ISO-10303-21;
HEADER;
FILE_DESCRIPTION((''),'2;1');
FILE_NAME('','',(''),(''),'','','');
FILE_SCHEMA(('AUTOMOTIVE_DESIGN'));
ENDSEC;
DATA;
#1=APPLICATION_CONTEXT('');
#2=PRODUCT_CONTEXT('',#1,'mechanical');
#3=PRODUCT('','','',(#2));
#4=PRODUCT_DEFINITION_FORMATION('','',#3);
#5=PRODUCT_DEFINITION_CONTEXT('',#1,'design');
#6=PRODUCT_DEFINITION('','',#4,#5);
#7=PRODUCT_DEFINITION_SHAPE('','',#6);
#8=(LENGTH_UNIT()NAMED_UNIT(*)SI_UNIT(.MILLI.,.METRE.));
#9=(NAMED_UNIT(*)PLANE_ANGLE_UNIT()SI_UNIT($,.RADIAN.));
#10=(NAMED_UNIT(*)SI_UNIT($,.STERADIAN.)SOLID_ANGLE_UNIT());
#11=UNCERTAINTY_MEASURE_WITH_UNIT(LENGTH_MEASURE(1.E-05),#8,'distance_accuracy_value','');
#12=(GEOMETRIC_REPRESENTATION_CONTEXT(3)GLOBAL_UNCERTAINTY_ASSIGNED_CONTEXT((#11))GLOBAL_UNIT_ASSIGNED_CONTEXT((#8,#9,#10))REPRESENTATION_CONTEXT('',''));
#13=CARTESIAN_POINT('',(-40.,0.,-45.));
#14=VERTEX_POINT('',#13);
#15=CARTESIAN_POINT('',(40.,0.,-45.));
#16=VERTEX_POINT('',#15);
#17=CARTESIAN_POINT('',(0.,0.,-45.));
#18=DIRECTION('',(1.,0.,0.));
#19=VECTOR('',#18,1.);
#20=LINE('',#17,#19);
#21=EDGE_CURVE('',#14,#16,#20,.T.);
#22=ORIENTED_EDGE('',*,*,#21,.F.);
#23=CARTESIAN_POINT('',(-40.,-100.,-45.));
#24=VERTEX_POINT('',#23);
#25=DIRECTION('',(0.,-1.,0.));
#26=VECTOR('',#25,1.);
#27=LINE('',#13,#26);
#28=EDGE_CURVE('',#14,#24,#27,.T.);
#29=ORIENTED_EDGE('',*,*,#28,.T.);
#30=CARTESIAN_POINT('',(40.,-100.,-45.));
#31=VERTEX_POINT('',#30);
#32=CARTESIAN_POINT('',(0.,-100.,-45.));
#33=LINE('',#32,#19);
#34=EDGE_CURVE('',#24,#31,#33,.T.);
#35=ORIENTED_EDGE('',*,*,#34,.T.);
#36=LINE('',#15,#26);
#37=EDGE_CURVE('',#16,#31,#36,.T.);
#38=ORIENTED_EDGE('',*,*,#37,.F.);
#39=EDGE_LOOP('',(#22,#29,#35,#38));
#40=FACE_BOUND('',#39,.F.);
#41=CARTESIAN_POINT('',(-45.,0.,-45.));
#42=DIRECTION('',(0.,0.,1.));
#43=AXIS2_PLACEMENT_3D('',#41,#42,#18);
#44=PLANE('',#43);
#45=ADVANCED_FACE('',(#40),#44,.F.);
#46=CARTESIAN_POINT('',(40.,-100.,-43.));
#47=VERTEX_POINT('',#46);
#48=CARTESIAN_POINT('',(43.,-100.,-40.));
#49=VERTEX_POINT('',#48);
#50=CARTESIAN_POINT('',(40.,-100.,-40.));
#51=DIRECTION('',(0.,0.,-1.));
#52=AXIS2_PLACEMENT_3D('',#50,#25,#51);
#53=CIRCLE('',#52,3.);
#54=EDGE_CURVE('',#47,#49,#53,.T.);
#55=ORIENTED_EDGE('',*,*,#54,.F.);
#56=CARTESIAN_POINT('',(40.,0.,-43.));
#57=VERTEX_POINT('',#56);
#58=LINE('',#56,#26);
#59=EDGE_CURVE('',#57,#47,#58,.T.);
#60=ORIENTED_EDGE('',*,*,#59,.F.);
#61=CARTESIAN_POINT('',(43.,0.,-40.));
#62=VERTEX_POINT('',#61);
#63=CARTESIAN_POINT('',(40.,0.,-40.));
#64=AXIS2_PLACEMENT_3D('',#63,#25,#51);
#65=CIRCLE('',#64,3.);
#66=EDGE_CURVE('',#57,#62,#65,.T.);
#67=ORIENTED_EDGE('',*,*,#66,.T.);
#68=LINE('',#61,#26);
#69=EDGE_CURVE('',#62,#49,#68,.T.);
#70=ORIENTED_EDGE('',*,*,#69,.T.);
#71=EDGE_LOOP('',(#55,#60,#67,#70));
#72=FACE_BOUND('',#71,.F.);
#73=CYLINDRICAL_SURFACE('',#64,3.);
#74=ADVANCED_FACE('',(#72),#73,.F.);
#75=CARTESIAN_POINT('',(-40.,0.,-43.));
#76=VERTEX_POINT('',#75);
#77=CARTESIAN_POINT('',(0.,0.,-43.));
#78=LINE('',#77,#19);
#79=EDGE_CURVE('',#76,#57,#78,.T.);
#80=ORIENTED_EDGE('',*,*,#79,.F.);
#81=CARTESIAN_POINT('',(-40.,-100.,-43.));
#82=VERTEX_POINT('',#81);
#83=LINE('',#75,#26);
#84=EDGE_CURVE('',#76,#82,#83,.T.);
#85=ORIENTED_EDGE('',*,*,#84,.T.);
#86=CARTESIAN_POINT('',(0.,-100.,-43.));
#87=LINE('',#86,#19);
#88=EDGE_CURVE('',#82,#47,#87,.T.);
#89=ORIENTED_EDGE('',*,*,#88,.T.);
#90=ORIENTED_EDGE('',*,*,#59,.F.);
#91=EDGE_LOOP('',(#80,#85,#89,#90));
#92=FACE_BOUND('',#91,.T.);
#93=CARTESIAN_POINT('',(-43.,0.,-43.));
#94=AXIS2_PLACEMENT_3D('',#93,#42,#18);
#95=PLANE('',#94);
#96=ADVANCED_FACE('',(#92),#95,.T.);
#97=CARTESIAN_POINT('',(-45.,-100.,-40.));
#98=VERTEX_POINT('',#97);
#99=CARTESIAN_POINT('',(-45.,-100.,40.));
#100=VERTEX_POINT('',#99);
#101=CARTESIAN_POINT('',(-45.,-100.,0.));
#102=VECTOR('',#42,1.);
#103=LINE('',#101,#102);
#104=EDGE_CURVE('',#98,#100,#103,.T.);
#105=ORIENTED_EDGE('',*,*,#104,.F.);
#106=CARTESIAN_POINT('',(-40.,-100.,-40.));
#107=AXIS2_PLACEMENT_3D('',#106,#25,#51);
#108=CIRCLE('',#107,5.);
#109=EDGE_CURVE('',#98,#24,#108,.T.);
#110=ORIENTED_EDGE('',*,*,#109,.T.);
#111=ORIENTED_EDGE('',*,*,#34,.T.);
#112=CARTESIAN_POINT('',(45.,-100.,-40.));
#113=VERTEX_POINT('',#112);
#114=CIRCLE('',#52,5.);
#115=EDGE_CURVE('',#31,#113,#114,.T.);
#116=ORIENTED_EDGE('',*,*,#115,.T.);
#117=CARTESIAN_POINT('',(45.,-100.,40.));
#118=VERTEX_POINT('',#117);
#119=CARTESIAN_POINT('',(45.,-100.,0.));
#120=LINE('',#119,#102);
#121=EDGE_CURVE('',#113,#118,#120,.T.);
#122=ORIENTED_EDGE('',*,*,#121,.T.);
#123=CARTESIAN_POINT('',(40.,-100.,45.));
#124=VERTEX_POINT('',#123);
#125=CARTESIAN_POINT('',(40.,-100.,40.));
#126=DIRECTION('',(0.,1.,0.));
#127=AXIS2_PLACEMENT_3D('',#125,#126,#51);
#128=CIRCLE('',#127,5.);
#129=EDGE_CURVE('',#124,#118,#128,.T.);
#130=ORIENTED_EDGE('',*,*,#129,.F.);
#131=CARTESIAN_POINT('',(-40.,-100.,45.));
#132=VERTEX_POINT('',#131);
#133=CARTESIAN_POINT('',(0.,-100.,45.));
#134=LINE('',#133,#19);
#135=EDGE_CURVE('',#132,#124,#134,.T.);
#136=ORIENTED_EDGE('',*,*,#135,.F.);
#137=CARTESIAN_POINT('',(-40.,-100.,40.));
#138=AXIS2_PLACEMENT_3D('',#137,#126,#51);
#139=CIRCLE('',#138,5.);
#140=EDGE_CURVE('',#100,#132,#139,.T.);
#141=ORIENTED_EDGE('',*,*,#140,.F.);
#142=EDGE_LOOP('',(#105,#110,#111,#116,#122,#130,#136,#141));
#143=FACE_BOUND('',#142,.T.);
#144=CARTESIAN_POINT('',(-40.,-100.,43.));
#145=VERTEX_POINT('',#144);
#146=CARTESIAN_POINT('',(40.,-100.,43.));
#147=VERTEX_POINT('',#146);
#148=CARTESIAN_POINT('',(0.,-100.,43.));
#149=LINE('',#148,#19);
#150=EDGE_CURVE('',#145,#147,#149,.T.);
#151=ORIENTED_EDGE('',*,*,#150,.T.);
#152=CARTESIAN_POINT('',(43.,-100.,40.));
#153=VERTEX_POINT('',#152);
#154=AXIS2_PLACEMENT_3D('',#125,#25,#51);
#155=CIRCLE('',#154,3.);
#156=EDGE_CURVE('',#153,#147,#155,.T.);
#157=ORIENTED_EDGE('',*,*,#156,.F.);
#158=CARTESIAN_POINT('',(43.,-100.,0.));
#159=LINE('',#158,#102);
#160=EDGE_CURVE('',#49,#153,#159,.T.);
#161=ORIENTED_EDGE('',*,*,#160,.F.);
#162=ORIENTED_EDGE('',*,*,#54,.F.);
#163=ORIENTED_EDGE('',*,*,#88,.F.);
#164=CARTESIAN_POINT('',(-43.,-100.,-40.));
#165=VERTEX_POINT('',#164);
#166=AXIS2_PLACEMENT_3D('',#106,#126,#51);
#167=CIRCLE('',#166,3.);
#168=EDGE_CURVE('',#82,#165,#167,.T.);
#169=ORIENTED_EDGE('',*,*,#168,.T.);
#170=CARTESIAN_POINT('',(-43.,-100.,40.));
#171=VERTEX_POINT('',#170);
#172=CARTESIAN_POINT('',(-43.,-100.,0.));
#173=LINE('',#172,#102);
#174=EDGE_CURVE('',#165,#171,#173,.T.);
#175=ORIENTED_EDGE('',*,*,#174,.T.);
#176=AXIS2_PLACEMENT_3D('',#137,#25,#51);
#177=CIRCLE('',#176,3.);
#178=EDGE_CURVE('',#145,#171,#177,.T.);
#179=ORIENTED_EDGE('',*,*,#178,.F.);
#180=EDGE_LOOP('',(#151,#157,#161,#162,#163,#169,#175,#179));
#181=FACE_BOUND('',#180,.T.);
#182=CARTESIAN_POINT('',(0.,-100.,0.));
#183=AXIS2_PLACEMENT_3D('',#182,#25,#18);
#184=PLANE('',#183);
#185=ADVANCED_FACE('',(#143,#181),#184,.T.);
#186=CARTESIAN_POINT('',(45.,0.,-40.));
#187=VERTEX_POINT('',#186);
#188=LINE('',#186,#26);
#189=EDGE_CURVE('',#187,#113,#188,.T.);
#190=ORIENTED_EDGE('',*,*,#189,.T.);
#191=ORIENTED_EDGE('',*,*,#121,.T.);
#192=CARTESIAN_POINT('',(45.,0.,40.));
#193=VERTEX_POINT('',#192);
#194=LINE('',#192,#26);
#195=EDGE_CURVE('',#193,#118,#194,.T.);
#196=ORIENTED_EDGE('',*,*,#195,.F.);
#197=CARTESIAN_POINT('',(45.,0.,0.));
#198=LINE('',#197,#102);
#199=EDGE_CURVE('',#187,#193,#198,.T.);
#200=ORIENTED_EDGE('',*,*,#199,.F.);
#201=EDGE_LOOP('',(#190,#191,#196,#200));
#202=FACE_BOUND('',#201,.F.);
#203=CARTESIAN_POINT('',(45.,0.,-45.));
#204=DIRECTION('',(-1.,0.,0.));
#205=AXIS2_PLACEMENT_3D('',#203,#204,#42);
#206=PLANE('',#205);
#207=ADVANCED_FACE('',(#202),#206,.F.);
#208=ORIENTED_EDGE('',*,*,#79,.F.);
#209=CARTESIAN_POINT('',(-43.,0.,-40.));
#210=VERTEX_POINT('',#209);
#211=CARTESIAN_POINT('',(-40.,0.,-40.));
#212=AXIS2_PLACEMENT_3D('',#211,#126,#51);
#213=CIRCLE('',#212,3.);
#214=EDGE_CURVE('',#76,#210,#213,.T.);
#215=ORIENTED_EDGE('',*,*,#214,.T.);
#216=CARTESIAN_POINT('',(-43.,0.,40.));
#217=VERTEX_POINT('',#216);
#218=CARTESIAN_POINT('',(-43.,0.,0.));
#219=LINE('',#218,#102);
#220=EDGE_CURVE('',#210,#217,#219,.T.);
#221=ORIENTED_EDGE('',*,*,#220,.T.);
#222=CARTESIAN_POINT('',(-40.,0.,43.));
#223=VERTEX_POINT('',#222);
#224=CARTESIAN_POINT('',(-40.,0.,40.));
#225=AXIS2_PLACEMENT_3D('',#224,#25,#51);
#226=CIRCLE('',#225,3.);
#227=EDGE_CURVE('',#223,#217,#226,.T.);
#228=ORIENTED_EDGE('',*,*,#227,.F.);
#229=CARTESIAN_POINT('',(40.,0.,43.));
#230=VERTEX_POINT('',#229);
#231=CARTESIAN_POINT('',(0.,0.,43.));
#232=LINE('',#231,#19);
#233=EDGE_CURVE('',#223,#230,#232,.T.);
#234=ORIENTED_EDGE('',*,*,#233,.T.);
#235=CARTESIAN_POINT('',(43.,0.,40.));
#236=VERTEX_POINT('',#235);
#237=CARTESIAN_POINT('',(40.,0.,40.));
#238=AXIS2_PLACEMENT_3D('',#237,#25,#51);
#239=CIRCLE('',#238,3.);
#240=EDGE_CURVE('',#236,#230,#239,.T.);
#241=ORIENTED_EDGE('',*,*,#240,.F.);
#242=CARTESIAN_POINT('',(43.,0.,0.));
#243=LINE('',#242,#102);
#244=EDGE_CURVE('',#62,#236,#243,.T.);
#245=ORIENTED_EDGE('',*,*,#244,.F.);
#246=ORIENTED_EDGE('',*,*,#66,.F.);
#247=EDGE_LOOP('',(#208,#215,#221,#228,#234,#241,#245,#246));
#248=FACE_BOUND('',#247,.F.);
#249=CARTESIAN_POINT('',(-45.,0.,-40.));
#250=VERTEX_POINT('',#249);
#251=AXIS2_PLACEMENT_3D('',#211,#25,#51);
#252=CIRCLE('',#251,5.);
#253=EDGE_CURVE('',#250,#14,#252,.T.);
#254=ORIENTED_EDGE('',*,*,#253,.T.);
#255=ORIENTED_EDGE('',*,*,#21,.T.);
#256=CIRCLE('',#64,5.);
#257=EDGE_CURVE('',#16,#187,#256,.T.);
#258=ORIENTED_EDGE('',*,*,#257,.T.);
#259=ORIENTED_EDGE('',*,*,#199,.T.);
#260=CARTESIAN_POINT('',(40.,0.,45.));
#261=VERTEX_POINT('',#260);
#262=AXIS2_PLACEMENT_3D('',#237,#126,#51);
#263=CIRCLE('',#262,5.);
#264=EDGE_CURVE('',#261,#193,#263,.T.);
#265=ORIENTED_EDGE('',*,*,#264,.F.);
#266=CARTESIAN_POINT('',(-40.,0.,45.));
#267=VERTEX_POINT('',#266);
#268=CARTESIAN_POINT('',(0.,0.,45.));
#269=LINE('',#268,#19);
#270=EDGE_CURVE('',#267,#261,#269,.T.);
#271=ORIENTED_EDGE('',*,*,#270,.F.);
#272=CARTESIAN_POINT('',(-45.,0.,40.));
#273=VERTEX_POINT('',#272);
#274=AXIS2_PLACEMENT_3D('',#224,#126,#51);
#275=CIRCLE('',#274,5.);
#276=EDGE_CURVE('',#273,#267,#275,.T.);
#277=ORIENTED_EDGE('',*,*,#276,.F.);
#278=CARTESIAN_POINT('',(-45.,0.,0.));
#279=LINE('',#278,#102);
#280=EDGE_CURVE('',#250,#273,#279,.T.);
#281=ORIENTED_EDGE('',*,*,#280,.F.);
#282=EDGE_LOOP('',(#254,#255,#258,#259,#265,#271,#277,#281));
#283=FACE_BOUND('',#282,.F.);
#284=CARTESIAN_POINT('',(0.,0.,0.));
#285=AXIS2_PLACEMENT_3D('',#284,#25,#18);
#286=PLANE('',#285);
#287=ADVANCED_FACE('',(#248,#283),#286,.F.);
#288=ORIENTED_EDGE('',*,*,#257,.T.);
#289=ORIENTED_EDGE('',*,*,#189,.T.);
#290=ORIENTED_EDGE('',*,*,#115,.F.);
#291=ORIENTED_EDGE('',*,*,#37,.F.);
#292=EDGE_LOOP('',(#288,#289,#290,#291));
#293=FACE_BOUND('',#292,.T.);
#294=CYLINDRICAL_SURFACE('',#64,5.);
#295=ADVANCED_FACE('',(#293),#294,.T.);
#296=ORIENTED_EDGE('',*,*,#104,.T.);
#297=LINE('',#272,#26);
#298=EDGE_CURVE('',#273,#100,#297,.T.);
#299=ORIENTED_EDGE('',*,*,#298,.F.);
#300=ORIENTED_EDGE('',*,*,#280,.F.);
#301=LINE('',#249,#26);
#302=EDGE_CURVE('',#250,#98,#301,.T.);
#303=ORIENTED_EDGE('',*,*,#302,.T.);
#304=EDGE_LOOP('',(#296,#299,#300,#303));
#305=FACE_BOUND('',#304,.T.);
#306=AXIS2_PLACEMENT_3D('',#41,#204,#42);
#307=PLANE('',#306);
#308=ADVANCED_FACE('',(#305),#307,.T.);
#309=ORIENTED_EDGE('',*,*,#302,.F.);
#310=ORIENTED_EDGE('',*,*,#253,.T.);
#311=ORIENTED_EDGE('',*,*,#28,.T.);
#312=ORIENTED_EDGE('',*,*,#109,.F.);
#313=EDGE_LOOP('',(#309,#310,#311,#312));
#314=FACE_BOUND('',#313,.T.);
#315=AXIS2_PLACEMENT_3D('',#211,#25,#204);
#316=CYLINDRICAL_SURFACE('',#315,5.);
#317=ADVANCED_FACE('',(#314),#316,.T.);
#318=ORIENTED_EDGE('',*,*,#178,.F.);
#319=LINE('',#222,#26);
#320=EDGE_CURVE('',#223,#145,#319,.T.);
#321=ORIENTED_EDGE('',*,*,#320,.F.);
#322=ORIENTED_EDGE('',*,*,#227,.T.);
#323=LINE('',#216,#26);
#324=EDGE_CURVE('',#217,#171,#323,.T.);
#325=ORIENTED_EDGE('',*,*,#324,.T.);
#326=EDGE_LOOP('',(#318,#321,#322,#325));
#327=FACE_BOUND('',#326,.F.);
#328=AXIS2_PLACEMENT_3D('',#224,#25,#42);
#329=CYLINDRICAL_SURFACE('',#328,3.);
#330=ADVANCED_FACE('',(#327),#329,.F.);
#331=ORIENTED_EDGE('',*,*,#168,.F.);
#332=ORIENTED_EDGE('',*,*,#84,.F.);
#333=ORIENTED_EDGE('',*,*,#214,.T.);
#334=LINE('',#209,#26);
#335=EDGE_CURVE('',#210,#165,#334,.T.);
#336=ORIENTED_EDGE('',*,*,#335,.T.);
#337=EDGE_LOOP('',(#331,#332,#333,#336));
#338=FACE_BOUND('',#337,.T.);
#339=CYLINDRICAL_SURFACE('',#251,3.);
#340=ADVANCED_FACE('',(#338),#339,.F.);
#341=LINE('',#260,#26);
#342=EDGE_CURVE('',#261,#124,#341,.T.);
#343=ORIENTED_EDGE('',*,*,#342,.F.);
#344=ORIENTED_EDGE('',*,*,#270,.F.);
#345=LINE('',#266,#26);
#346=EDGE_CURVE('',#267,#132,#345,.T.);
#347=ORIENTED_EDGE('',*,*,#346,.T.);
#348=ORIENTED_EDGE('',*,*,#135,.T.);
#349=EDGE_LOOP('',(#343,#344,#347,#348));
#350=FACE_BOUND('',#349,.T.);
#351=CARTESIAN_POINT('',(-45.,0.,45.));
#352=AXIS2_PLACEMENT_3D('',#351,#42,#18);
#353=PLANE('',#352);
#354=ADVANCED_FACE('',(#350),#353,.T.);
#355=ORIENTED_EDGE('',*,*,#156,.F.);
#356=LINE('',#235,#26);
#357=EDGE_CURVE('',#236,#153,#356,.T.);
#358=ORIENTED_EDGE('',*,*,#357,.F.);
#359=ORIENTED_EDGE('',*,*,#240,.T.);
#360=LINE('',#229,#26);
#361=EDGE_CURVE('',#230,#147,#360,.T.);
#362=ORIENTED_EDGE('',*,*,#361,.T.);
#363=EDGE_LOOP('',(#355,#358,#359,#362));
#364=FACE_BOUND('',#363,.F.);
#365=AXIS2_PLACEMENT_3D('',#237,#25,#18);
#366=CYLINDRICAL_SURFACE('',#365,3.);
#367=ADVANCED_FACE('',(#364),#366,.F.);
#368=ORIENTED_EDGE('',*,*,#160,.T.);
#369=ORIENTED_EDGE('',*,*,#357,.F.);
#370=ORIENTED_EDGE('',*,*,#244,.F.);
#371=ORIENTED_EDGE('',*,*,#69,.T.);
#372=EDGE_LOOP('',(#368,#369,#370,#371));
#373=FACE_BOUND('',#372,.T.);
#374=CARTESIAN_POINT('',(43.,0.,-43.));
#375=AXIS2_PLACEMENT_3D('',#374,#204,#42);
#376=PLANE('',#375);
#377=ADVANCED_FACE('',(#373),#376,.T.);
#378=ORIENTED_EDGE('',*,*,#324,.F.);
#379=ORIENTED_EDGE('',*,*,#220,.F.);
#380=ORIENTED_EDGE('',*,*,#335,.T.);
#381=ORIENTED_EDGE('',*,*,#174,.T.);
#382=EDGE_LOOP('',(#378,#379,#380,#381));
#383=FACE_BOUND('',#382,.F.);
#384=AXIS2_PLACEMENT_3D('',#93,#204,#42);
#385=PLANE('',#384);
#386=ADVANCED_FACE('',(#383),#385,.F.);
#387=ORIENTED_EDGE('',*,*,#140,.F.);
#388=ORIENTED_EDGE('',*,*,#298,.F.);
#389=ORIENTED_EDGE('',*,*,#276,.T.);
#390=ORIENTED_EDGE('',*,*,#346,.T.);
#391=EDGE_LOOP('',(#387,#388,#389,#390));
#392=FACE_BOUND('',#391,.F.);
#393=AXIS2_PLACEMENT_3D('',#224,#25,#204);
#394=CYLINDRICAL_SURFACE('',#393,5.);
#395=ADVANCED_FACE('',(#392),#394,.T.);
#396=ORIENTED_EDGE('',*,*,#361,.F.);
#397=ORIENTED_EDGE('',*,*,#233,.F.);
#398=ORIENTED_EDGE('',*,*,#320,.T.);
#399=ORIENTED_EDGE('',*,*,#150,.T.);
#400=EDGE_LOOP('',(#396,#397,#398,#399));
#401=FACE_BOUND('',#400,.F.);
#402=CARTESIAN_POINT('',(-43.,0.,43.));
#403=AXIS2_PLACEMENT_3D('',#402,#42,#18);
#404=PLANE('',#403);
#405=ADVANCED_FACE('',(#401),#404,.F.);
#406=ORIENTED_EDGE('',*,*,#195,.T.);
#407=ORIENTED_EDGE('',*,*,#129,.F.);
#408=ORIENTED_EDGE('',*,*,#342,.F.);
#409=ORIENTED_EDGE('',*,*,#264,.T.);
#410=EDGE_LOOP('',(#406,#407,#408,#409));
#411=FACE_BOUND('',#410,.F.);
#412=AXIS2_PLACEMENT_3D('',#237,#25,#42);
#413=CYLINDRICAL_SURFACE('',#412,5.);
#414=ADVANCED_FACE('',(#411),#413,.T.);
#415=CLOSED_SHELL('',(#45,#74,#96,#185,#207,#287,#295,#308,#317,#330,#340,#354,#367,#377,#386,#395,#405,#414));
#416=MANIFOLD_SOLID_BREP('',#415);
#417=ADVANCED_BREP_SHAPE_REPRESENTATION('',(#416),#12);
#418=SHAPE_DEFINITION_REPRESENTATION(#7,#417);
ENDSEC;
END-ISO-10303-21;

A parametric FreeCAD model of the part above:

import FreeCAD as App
import Part
import Sketcher
from FreeCAD import Vector
Q = App.Units.Quantity


def edges_at(feature, points):
    """Names of the edges that pass closest to the given points."""
    edges = feature.Shape.Edges
    near = lambda p: min(range(len(edges)), key=lambda i: edges[i].distToShape(Part.Vertex(*p))[0])
    return sorted({f"Edge{near(p) + 1}" for p in points})


def add_polygon(sketch, points):
    """Adds a closed chain of lines whose ends are joined by coincident constraints."""
    first, n = sketch.GeometryCount, len(points)
    for a, b in zip(points, points[1:] + points[:1]):
        sketch.addGeometry(Part.LineSegment(App.Vector(*a, 0), App.Vector(*b, 0)), False)
    for i in range(n):
        sketch.addConstraint(Sketcher.Constraint("Coincident", first + i, 2, first + (i + 1) % n, 1))

doc = App.newDocument("Part")
params = doc.addObject("Spreadsheet::Sheet", "Params")
for row, (alias, value) in enumerate([
    ("sketch1_width", "90 mm"),
    ("sketch1_width2", "86 mm"),
    ("pad1_length", "100 mm"),
    ("fillet_radius", "5 mm"),
    ("fillet2_radius", "3 mm"),
], start=1):
    params.set(f"A{row}", alias)
    params.set(f"B{row}", "=" + value)
    params.setAlias(f"B{row}", alias)

body = doc.addObject("PartDesign::Body", "Body")

# Sketch on XZ plane
sketch1 = doc.addObject("Sketcher::SketchObject", "Sketch")
body.addObject(sketch1)
sketch1.AttachmentSupport = (doc.XZ_Plane, [""])
sketch1.MapMode = "FlatFace"
add_polygon(sketch1, [(-45, 45), (-45, -45), (45, -45), (45, 45)])  # lines 0-3
add_polygon(sketch1, [(43, -43), (-43, -43), (-43, 43), (43, 43)])  # lines 4-7
sketch1.addConstraint([
    Sketcher.Constraint("Vertical", 0),
    Sketcher.Constraint("Horizontal", 1),
    Sketcher.Constraint("Vertical", 2),
    Sketcher.Constraint("Horizontal", 3),
    Sketcher.Constraint("Horizontal", 4),
    Sketcher.Constraint("Vertical", 5),
    Sketcher.Constraint("Horizontal", 6),
    Sketcher.Constraint("Vertical", 7),
    Sketcher.Constraint("Symmetric", 0, 2, 2, 2, -1, 1),
    Sketcher.Constraint("Symmetric", 4, 2, 6, 2, -1, 1),
    Sketcher.Constraint("Equal", 3, 0),
    Sketcher.Constraint("Equal", 6, 5),
    Sketcher.Constraint("DistanceX", 1, 1, 1, 2, Q("90 mm")),
    Sketcher.Constraint("DistanceX", 4, 2, 4, 1, Q("86 mm")),
])
sketch1.setExpression("Constraints[20]", "Params.sketch1_width")
sketch1.setExpression("Constraints[21]", "Params.sketch1_width2")
pad1 = doc.addObject("PartDesign::Pad", "Pad")
body.addObject(pad1)
pad1.Profile = sketch1
pad1.setExpression("Length", "Params.pad1_length")
doc.recompute()

fillet = doc.addObject("PartDesign::Fillet", "Fillet")
body.addObject(fillet)
fillet.Base = (pad1, edges_at(pad1, [
    (45, -50, 45),
    (-45, -50, 45),
    (45, -50, -45),
    (-45, -50, -45),
]))
fillet.setExpression("Radius", "Params.fillet_radius")
doc.recompute()

fillet2 = doc.addObject("PartDesign::Fillet", "Fillet001")
body.addObject(fillet2)
fillet2.Base = (fillet, edges_at(fillet, [
    (-43, -50, 43),
    (43, -50, 43),
    (-43, -50, -43),
    (43, -50, -43),
]))
fillet2.setExpression("Radius", "Params.fillet2_radius")

doc.recompute()
